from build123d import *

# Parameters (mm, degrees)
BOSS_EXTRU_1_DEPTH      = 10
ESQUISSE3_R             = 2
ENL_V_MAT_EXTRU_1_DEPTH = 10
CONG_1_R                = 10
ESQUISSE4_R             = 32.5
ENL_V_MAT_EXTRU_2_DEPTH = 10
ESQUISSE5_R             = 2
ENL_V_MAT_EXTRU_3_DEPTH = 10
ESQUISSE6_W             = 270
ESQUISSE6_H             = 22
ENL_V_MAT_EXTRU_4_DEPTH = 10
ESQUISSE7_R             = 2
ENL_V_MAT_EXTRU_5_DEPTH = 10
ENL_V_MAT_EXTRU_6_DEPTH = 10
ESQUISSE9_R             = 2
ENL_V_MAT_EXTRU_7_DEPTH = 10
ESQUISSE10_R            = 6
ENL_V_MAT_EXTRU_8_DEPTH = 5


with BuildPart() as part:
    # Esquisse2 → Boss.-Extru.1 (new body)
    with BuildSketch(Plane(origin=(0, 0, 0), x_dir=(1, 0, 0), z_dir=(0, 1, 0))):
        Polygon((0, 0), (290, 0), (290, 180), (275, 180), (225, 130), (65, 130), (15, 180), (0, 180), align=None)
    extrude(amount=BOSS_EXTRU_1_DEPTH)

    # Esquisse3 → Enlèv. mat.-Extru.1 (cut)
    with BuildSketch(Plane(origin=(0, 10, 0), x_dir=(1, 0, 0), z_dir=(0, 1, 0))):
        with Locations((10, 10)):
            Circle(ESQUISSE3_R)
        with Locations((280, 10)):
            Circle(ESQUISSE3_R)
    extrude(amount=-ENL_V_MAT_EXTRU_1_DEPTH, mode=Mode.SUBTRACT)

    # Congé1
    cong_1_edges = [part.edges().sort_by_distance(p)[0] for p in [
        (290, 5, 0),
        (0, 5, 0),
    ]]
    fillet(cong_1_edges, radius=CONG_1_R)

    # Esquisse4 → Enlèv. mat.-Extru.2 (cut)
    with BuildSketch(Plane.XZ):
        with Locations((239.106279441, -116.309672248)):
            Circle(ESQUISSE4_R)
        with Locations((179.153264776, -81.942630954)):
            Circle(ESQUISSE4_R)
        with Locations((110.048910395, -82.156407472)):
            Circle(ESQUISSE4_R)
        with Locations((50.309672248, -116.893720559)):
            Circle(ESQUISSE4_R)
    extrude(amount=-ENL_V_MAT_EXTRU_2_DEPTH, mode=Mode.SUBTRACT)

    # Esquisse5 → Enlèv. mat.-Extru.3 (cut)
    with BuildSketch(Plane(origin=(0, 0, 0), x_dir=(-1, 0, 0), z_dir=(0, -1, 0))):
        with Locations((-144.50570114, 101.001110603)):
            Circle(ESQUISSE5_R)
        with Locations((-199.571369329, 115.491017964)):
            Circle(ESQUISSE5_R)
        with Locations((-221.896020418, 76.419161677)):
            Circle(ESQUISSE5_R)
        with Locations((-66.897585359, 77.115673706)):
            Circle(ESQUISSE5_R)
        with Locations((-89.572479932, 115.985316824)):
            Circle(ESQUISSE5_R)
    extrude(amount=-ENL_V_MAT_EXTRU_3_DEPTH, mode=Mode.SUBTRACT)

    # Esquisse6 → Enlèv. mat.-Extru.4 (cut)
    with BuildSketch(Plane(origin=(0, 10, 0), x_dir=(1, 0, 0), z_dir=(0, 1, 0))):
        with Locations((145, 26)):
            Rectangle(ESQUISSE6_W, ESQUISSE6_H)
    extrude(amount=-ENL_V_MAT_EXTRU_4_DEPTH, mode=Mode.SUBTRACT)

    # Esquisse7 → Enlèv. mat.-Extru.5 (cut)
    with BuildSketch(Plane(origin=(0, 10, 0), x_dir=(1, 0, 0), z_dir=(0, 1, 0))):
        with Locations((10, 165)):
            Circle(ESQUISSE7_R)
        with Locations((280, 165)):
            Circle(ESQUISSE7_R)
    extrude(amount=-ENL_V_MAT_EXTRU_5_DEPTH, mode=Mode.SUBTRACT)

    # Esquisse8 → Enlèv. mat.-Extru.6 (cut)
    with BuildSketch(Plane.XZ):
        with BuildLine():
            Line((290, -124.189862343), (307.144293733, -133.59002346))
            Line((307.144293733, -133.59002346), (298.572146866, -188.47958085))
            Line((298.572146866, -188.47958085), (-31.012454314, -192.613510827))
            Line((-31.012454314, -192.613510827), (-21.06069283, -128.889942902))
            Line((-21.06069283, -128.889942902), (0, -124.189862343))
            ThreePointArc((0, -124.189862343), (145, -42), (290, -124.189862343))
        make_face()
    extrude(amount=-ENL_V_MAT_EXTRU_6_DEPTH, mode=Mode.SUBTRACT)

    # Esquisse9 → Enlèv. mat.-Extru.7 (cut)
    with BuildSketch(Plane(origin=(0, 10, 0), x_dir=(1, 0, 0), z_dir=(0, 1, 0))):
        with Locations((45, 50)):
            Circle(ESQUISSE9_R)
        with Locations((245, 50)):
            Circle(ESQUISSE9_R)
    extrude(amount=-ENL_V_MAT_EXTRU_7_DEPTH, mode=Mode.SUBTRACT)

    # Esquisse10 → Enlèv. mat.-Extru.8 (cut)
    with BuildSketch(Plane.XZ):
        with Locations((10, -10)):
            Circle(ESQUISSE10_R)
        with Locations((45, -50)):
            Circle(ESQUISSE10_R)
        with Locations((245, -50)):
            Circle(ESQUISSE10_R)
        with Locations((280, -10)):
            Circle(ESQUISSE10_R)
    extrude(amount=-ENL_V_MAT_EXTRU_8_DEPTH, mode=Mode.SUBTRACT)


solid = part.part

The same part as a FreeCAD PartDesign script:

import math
import FreeCAD as App
import Part
import Sketcher

V = App.Vector
Q = App.Units.Quantity


def edges_at(feature, points):
    """Names of the edges that pass closest to the given points."""
    edges = feature.Shape.Edges
    near = lambda p: min(range(len(edges)), key=lambda i: edges[i].distToShape(Part.Vertex(*p))[0])
    return sorted({f"Edge{near(p) + 1}" for p in points})


def add_polygon(sketch, points):
    """Adds a closed chain of lines whose ends are joined by coincident constraints."""
    first, n = sketch.GeometryCount, len(points)
    for a, b in zip(points, points[1:] + points[:1]):
        sketch.addGeometry(Part.LineSegment(App.Vector(*a, 0), App.Vector(*b, 0)), False)
    for i in range(n):
        sketch.addConstraint(Sketcher.Constraint("Coincident", first + i, 2, first + (i + 1) % n, 1))

doc = App.newDocument("Part")
params = doc.addObject("Spreadsheet::Sheet", "Params")
for row, (alias, value) in enumerate([
    ("sketch1_width", "290 mm"),
    ("sketch1_width2", "15 mm"),
    ("sketch1_width3", "160 mm"),
    ("sketch1_height", "180 mm"),
    ("pad1_length", "10 mm"),
    ("sketch2_diameter", "4 mm"),
    ("pocket1_length", "10 mm"),
    ("fillet_radius", "10 mm"),
    ("sketch3_diameter", "65 mm"),
    ("pocket2_length", "10 mm"),
    ("sketch4_diameter", "4 mm"),
    ("pocket3_length", "10 mm"),
    ("sketch5_width", "270 mm"),
    ("sketch5_height", "22 mm"),
    ("pocket4_length", "10 mm"),
    ("sketch6_diameter", "4 mm"),
    ("pocket5_length", "10 mm"),
    ("sketch7_radius", "169 mm"),
    ("pocket6_length", "10 mm"),
    ("sketch8_diameter", "4 mm"),
    ("pocket7_length", "10 mm"),
    ("sketch9_diameter", "12 mm"),
    ("pocket8_length", "5 mm"),
], start=1):
    params.set(f"A{row}", alias)
    params.set(f"B{row}", "=" + value)
    params.setAlias(f"B{row}", alias)

body = doc.addObject("PartDesign::Body", "Body")

# Sketch on XZ plane
sketch1 = body.newObject("Sketcher::SketchObject", "Sketch")
sketch1.AttachmentSupport = (doc.getObject("XZ_Plane"), [""])
sketch1.MapMode = "FlatFace"
add_polygon(sketch1, [(0, 0), (290, 0), (290, -180), (275, -180), (225, -130), (65, -130), (15, -180), (0, -180)])  # lines 0-7
sketch1.addConstraint([
    Sketcher.Constraint("Horizontal", 0),
    Sketcher.Constraint("Vertical", 1),
    Sketcher.Constraint("Horizontal", 2),
    Sketcher.Constraint("Horizontal", 4),
    Sketcher.Constraint("Horizontal", 6),
    Sketcher.Constraint("Vertical", 7),
    Sketcher.Constraint("Coincident", 7, 2, -1, 1),
    Sketcher.Constraint("Perpendicular", 3, 5),
    Sketcher.Constraint("Horizontal", 2, 2, 5, 2),
    Sketcher.Constraint("Equal", 2, 6),
    Sketcher.Constraint("Equal", 3, 5),
    Sketcher.Constraint("DistanceX", 0, 1, 0, 2, Q("290 mm")),
    Sketcher.Constraint("DistanceX", 2, 2, 2, 1, Q("15 mm")),
    Sketcher.Constraint("DistanceX", 4, 2, 4, 1, Q("160 mm")),
    Sketcher.Constraint("DistanceY", 1, 2, 1, 1, Q("180 mm")),
])
sketch1.setExpression("Constraints[19]", "Params.sketch1_width")
sketch1.setExpression("Constraints[20]", "Params.sketch1_width2")
sketch1.setExpression("Constraints[21]", "Params.sketch1_width3")
sketch1.setExpression("Constraints[22]", "Params.sketch1_height")
pad1 = body.newObject("PartDesign::Pad", "Pad")
pad1.Profile = sketch1
pad1.setExpression("Length", "Params.pad1_length")
pad1.Reversed = True

# Sketch on XZ plane
sketch2 = body.newObject("Sketcher::SketchObject", "Sketch001")
sketch2.AttachmentSupport = (doc.getObject("XZ_Plane"), [""])
sketch2.MapMode = "FlatFace"
sketch2.AttachmentOffset = App.Placement(V(0, 0, -10), App.Rotation())
sketch2.addGeometry([
    Part.Circle(V(10, -10, 0), V(0, 0, 1), 2),
    Part.Circle(V(280, -10, 0), V(0, 0, 1), 2),
], False)
sketch2.addConstraint([
    Sketcher.Constraint("Equal", 0, 1),
    Sketcher.Constraint("Horizontal", 0, 3, 1, 3),
    Sketcher.Constraint("Diameter", 0, Q("4 mm")),
    Sketcher.Constraint("DistanceX", -1, 1, 0, 3, Q("10 mm")),
    Sketcher.Constraint("DistanceY", 0, 3, -1, 1, Q("10 mm")),
    Sketcher.Constraint("DistanceX", -1, 1, 1, 3, Q("280 mm")),
])
sketch2.setExpression("Constraints[2]", "Params.sketch2_diameter")
pocket1 = body.newObject("PartDesign::Pocket", "Pocket")
pocket1.Profile = sketch2
pocket1.setExpression("Length", "Params.pocket1_length")
pocket1.Reversed = True
doc.recompute()

fillet = body.newObject("PartDesign::Fillet", "Fillet")
fillet.Base = (pocket1, edges_at(pocket1, [(290, 5, 0), (0, 5, 0)]))
fillet.setExpression("Radius", "Params.fillet_radius")

# Sketch on XZ plane
sketch3 = body.newObject("Sketcher::SketchObject", "Sketch002")
sketch3.AttachmentSupport = (doc.getObject("XZ_Plane"), [""])
sketch3.MapMode = "FlatFace"
sketch3.addGeometry([
    Part.Circle(V(239, -116, 0), V(0, 0, 1), 32),
    Part.Circle(V(179, -82, 0), V(0, 0, 1), 32),
    Part.Circle(V(110, -82, 0), V(0, 0, 1), 32),
    Part.Circle(V(50, -117, 0), V(0, 0, 1), 32),
], False)
sketch3.addConstraint([
    Sketcher.Constraint("Equal", 0, 1),
    Sketcher.Constraint("Equal", 1, 2),
    Sketcher.Constraint("Equal", 2, 3),
    Sketcher.Constraint("Diameter", 0, Q("65 mm")),
    Sketcher.Constraint("DistanceX", -1, 1, 0, 3, Q("239.106279 mm")),
    Sketcher.Constraint("DistanceY", 1, 3, -1, 1, Q("81.942631 mm")),
    Sketcher.Constraint("DistanceX", -1, 1, 2, 3, Q("110.04891 mm")),
    Sketcher.Constraint("DistanceY", 3, 3, -1, 1, Q("116.893721 mm")),
    Sketcher.Constraint("DistanceY", 0, 3, 1, 3, Q("34.367041 mm")),
    Sketcher.Constraint("DistanceX", 3, 3, 2, 3, Q("59.739238 mm")),
    Sketcher.Constraint("DistanceX", -1, 1, 1, 3, Q("179.153265 mm")),
    Sketcher.Constraint("DistanceY", 2, 3, -1, 1, Q("82.156407 mm")),
])
sketch3.setExpression("Constraints[3]", "Params.sketch3_diameter")
pocket2 = body.newObject("PartDesign::Pocket", "Pocket001")
pocket2.Profile = sketch3
pocket2.setExpression("Length", "Params.pocket2_length")

# Sketch on XZ plane
sketch4 = body.newObject("Sketcher::SketchObject", "Sketch003")
sketch4.AttachmentSupport = (doc.getObject("XZ_Plane"), [""])
sketch4.MapMode = "FlatFace"
sketch4.addGeometry([
    Part.Circle(V(144.5, -101, 0), V(0, 0, 1), 2),  # 0
    Part.Circle(V(199.6, -115.5, 0), V(0, 0, 1), 2),  # 1
    Part.Circle(V(221.9, -76.4, 0), V(0, 0, 1), 2),  # 2
    Part.Circle(V(66.9, -77.1, 0), V(0, 0, 1), 2),  # 3
    Part.Circle(V(89.6, -116, 0), V(0, 0, 1), 2),  # 4
], False)
sketch4.addConstraint([
    Sketcher.Constraint("Equal", 0, 1),
    Sketcher.Constraint("Equal", 1, 2),
    Sketcher.Constraint("Equal", 2, 3),
    Sketcher.Constraint("Equal", 3, 4),
    Sketcher.Constraint("Diameter", 0, Q("4 mm")),
    Sketcher.Constraint("DistanceX", -1, 1, 0, 3, Q("144.505701 mm")),
    Sketcher.Constraint("DistanceY", 4, 3, 1, 3, Q("0.494299 mm")),
    Sketcher.Constraint("DistanceY", 0, 3, -1, 1, Q("101.001111 mm")),
    Sketcher.Constraint("DistanceX", -1, 1, 1, 3, Q("199.571369 mm")),
    Sketcher.Constraint("DistanceX", -1, 1, 2, 3, Q("221.89602 mm")),
    Sketcher.Constraint("DistanceY", 2, 3, -1, 1, Q("76.419162 mm")),
    Sketcher.Constraint("DistanceX", -1, 1, 4, 3, Q("89.57248 mm")),
    Sketcher.Constraint("DistanceY", 1, 3, -1, 1, Q("115.491018 mm")),
    Sketcher.Constraint("DistanceX", -1, 1, 3, 3, Q("66.897585 mm")),
    Sketcher.Constraint("DistanceY", 3, 3, -1, 1, Q("77.115674 mm")),
])
sketch4.setExpression("Constraints[4]", "Params.sketch4_diameter")
pocket3 = body.newObject("PartDesign::Pocket", "Pocket002")
pocket3.Profile = sketch4
pocket3.setExpression("Length", "Params.pocket3_length")

# Sketch on XZ plane
sketch5 = body.newObject("Sketcher::SketchObject", "Sketch004")
sketch5.AttachmentSupport = (doc.getObject("XZ_Plane"), [""])
sketch5.MapMode = "FlatFace"
sketch5.AttachmentOffset = App.Placement(V(0, 0, -10), App.Rotation())
add_polygon(sketch5, [(10, -37), (10, -15), (280, -15), (280, -37)])  # lines 0-3
sketch5.addConstraint([
    Sketcher.Constraint("Vertical", 0),
    Sketcher.Constraint("Horizontal", 1),
    Sketcher.Constraint("Vertical", 2),
    Sketcher.Constraint("Horizontal", 3),
    Sketcher.Constraint("DistanceX", 1, 1, 1, 2, Q("270 mm")),
    Sketcher.Constraint("DistanceY", 0, 1, 0, 2, Q("22 mm")),
    Sketcher.Constraint("DistanceX", -1, 1, 0, 2, Q("10 mm")),
    Sketcher.Constraint("DistanceY", 0, 2, -1, 1, Q("15 mm")),
])
sketch5.setExpression("Constraints[8]", "Params.sketch5_width")
sketch5.setExpression("Constraints[9]", "Params.sketch5_height")
pocket4 = body.newObject("PartDesign::Pocket", "Pocket003")
pocket4.Profile = sketch5
pocket4.setExpression("Length", "Params.pocket4_length")
pocket4.Reversed = True

# Sketch on XZ plane
sketch6 = body.newObject("Sketcher::SketchObject", "Sketch005")
sketch6.AttachmentSupport = (doc.getObject("XZ_Plane"), [""])
sketch6.MapMode = "FlatFace"
sketch6.AttachmentOffset = App.Placement(V(0, 0, -10), App.Rotation())
sketch6.addGeometry([
    Part.Circle(V(10, -165, 0), V(0, 0, 1), 2),
    Part.Circle(V(280, -165, 0), V(0, 0, 1), 2),
], False)
sketch6.addConstraint([
    Sketcher.Constraint("Equal", 0, 1),
    Sketcher.Constraint("Horizontal", 0, 3, 1, 3),
    Sketcher.Constraint("Diameter", 0, Q("4 mm")),
    Sketcher.Constraint("DistanceX", -1, 1, 0, 3, Q("10 mm")),
    Sketcher.Constraint("DistanceY", 0, 3, -1, 1, Q("165 mm")),
    Sketcher.Constraint("DistanceX", -1, 1, 1, 3, Q("280 mm")),
])
sketch6.setExpression("Constraints[2]", "Params.sketch6_diameter")
pocket5 = body.newObject("PartDesign::Pocket", "Pocket004")
pocket5.Profile = sketch6
pocket5.setExpression("Length", "Params.pocket5_length")
pocket5.Reversed = True

# Sketch on XZ plane
sketch7 = body.newObject("Sketcher::SketchObject", "Sketch006")
sketch7.AttachmentSupport = (doc.getObject("XZ_Plane"), [""])
sketch7.MapMode = "FlatFace"
sketch7.addGeometry([
    Part.LineSegment(V(307, -134, 0), V(290, -124, 0)),  # 0
    Part.ArcOfCircle(Part.Circle(V(145, -211, 0), V(0, 0, 1), 169), math.radians(31), math.radians(149)),  # 1
    Part.LineSegment(V(0, -124, 0), V(-21, -129, 0)),  # 2
    Part.LineSegment(V(-21, -129, 0), V(-31, -193, 0)),  # 3
    Part.LineSegment(V(-31, -193, 0), V(299, -188, 0)),  # 4
    Part.LineSegment(V(299, -188, 0), V(307, -134, 0)),  # 5
], False)
sketch7.addConstraint([
    Sketcher.Constraint("Coincident", 0, 2, 1, 1),
    Sketcher.Constraint("Coincident", 1, 2, 2, 1),
    Sketcher.Constraint("Coincident", 2, 2, 3, 1),
    Sketcher.Constraint("Coincident", 3, 2, 4, 1),
    Sketcher.Constraint("Coincident", 4, 2, 5, 1),
    Sketcher.Constraint("Coincident", 5, 2, 0, 1),
    Sketcher.Constraint("PointOnObject", 1, 2, -2),
    Sketcher.Constraint("Parallel", 3, 5),
    Sketcher.Constraint("Horizontal", 0, 2, 1, 2),
    Sketcher.Constraint("Radius", 1, Q("169 mm")),
    Sketcher.Constraint("DistanceX", -1, 1, 1, 3, Q("145 mm")),
    Sketcher.Constraint("DistanceY", 1, 3, -1, 1, Q("211 mm")),
    Sketcher.Constraint("DistanceX", 3, 2, 4, 2, Q("329.584601 mm")),
    Sketcher.Constraint("DistanceY", 3, 2, -1, 1, Q("192.613511 mm")),
    Sketcher.Constraint("DistanceY", 4, 2, -1, 1, Q("188.479581 mm")),
    Sketcher.Constraint("DistanceY", 2, 2, 1, 2, Q("4.700081 mm")),
    Sketcher.Constraint("DistanceX", 3, 2, 2, 2, Q("9.951761 mm")),
    Sketcher.Constraint("DistanceY", 5, 2, 0, 2, Q("9.400161 mm")),
    Sketcher.Constraint("Distance", 0, Q("19.552234 mm")),
])
sketch7.setExpression("Constraints[9]", "Params.sketch7_radius")
pocket6 = body.newObject("PartDesign::Pocket", "Pocket005")
pocket6.Profile = sketch7
pocket6.setExpression("Length", "Params.pocket6_length")

# Sketch on XZ plane
sketch8 = body.newObject("Sketcher::SketchObject", "Sketch007")
sketch8.AttachmentSupport = (doc.getObject("XZ_Plane"), [""])
sketch8.MapMode = "FlatFace"
sketch8.AttachmentOffset = App.Placement(V(0, 0, -10), App.Rotation())
sketch8.addGeometry([
    Part.Circle(V(45, -50, 0), V(0, 0, 1), 2),
    Part.Circle(V(245, -50, 0), V(0, 0, 1), 2),
], False)
sketch8.addConstraint([
    Sketcher.Constraint("Equal", 0, 1),
    Sketcher.Constraint("Horizontal", 0, 3, 1, 3),
    Sketcher.Constraint("Diameter", 0, Q("4 mm")),
    Sketcher.Constraint("DistanceX", -1, 1, 0, 3, Q("45 mm")),
    Sketcher.Constraint("DistanceY", 0, 3, -1, 1, Q("50 mm")),
    Sketcher.Constraint("DistanceX", -1, 1, 1, 3, Q("245 mm")),
])
sketch8.setExpression("Constraints[2]", "Params.sketch8_diameter")
pocket7 = body.newObject("PartDesign::Pocket", "Pocket006")
pocket7.Profile = sketch8
pocket7.setExpression("Length", "Params.pocket7_length")
pocket7.Reversed = True

# Sketch on XZ plane
sketch9 = body.newObject("Sketcher::SketchObject", "Sketch008")
sketch9.AttachmentSupport = (doc.getObject("XZ_Plane"), [""])
sketch9.MapMode = "FlatFace"
sketch9.addGeometry([
    Part.Circle(V(10, -10, 0), V(0, 0, 1), 6),
    Part.Circle(V(45, -50, 0), V(0, 0, 1), 6),
    Part.Circle(V(245, -50, 0), V(0, 0, 1), 6),
    Part.Circle(V(280, -10, 0), V(0, 0, 1), 6),
], False)
sketch9.addConstraint([
    Sketcher.Constraint("Equal", 0, 1),
    Sketcher.Constraint("Equal", 1, 2),
    Sketcher.Constraint("Equal", 2, 3),
    Sketcher.Constraint("Horizontal", 1, 3, 2, 3),
    Sketcher.Constraint("Horizontal", 0, 3, 3, 3),
    Sketcher.Constraint("Diameter", 0, Q("12 mm")),
    Sketcher.Constraint("DistanceX", -1, 1, 0, 3, Q("10 mm")),
    Sketcher.Constraint("DistanceY", 0, 3, -1, 1, Q("10 mm")),
    Sketcher.Constraint("DistanceX", -1, 1, 1, 3, Q("45 mm")),
    Sketcher.Constraint("DistanceY", 1, 3, -1, 1, Q("50 mm")),
    Sketcher.Constraint("DistanceX", -1, 1, 2, 3, Q("245 mm")),
    Sketcher.Constraint("DistanceX", -1, 1, 3, 3, Q("280 mm")),
])
sketch9.setExpression("Constraints[5]", "Params.sketch9_diameter")
pocket8 = body.newObject("PartDesign::Pocket", "Pocket007")
pocket8.Profile = sketch9
pocket8.setExpression("Length", "Params.pocket8_length")

doc.recompute()
